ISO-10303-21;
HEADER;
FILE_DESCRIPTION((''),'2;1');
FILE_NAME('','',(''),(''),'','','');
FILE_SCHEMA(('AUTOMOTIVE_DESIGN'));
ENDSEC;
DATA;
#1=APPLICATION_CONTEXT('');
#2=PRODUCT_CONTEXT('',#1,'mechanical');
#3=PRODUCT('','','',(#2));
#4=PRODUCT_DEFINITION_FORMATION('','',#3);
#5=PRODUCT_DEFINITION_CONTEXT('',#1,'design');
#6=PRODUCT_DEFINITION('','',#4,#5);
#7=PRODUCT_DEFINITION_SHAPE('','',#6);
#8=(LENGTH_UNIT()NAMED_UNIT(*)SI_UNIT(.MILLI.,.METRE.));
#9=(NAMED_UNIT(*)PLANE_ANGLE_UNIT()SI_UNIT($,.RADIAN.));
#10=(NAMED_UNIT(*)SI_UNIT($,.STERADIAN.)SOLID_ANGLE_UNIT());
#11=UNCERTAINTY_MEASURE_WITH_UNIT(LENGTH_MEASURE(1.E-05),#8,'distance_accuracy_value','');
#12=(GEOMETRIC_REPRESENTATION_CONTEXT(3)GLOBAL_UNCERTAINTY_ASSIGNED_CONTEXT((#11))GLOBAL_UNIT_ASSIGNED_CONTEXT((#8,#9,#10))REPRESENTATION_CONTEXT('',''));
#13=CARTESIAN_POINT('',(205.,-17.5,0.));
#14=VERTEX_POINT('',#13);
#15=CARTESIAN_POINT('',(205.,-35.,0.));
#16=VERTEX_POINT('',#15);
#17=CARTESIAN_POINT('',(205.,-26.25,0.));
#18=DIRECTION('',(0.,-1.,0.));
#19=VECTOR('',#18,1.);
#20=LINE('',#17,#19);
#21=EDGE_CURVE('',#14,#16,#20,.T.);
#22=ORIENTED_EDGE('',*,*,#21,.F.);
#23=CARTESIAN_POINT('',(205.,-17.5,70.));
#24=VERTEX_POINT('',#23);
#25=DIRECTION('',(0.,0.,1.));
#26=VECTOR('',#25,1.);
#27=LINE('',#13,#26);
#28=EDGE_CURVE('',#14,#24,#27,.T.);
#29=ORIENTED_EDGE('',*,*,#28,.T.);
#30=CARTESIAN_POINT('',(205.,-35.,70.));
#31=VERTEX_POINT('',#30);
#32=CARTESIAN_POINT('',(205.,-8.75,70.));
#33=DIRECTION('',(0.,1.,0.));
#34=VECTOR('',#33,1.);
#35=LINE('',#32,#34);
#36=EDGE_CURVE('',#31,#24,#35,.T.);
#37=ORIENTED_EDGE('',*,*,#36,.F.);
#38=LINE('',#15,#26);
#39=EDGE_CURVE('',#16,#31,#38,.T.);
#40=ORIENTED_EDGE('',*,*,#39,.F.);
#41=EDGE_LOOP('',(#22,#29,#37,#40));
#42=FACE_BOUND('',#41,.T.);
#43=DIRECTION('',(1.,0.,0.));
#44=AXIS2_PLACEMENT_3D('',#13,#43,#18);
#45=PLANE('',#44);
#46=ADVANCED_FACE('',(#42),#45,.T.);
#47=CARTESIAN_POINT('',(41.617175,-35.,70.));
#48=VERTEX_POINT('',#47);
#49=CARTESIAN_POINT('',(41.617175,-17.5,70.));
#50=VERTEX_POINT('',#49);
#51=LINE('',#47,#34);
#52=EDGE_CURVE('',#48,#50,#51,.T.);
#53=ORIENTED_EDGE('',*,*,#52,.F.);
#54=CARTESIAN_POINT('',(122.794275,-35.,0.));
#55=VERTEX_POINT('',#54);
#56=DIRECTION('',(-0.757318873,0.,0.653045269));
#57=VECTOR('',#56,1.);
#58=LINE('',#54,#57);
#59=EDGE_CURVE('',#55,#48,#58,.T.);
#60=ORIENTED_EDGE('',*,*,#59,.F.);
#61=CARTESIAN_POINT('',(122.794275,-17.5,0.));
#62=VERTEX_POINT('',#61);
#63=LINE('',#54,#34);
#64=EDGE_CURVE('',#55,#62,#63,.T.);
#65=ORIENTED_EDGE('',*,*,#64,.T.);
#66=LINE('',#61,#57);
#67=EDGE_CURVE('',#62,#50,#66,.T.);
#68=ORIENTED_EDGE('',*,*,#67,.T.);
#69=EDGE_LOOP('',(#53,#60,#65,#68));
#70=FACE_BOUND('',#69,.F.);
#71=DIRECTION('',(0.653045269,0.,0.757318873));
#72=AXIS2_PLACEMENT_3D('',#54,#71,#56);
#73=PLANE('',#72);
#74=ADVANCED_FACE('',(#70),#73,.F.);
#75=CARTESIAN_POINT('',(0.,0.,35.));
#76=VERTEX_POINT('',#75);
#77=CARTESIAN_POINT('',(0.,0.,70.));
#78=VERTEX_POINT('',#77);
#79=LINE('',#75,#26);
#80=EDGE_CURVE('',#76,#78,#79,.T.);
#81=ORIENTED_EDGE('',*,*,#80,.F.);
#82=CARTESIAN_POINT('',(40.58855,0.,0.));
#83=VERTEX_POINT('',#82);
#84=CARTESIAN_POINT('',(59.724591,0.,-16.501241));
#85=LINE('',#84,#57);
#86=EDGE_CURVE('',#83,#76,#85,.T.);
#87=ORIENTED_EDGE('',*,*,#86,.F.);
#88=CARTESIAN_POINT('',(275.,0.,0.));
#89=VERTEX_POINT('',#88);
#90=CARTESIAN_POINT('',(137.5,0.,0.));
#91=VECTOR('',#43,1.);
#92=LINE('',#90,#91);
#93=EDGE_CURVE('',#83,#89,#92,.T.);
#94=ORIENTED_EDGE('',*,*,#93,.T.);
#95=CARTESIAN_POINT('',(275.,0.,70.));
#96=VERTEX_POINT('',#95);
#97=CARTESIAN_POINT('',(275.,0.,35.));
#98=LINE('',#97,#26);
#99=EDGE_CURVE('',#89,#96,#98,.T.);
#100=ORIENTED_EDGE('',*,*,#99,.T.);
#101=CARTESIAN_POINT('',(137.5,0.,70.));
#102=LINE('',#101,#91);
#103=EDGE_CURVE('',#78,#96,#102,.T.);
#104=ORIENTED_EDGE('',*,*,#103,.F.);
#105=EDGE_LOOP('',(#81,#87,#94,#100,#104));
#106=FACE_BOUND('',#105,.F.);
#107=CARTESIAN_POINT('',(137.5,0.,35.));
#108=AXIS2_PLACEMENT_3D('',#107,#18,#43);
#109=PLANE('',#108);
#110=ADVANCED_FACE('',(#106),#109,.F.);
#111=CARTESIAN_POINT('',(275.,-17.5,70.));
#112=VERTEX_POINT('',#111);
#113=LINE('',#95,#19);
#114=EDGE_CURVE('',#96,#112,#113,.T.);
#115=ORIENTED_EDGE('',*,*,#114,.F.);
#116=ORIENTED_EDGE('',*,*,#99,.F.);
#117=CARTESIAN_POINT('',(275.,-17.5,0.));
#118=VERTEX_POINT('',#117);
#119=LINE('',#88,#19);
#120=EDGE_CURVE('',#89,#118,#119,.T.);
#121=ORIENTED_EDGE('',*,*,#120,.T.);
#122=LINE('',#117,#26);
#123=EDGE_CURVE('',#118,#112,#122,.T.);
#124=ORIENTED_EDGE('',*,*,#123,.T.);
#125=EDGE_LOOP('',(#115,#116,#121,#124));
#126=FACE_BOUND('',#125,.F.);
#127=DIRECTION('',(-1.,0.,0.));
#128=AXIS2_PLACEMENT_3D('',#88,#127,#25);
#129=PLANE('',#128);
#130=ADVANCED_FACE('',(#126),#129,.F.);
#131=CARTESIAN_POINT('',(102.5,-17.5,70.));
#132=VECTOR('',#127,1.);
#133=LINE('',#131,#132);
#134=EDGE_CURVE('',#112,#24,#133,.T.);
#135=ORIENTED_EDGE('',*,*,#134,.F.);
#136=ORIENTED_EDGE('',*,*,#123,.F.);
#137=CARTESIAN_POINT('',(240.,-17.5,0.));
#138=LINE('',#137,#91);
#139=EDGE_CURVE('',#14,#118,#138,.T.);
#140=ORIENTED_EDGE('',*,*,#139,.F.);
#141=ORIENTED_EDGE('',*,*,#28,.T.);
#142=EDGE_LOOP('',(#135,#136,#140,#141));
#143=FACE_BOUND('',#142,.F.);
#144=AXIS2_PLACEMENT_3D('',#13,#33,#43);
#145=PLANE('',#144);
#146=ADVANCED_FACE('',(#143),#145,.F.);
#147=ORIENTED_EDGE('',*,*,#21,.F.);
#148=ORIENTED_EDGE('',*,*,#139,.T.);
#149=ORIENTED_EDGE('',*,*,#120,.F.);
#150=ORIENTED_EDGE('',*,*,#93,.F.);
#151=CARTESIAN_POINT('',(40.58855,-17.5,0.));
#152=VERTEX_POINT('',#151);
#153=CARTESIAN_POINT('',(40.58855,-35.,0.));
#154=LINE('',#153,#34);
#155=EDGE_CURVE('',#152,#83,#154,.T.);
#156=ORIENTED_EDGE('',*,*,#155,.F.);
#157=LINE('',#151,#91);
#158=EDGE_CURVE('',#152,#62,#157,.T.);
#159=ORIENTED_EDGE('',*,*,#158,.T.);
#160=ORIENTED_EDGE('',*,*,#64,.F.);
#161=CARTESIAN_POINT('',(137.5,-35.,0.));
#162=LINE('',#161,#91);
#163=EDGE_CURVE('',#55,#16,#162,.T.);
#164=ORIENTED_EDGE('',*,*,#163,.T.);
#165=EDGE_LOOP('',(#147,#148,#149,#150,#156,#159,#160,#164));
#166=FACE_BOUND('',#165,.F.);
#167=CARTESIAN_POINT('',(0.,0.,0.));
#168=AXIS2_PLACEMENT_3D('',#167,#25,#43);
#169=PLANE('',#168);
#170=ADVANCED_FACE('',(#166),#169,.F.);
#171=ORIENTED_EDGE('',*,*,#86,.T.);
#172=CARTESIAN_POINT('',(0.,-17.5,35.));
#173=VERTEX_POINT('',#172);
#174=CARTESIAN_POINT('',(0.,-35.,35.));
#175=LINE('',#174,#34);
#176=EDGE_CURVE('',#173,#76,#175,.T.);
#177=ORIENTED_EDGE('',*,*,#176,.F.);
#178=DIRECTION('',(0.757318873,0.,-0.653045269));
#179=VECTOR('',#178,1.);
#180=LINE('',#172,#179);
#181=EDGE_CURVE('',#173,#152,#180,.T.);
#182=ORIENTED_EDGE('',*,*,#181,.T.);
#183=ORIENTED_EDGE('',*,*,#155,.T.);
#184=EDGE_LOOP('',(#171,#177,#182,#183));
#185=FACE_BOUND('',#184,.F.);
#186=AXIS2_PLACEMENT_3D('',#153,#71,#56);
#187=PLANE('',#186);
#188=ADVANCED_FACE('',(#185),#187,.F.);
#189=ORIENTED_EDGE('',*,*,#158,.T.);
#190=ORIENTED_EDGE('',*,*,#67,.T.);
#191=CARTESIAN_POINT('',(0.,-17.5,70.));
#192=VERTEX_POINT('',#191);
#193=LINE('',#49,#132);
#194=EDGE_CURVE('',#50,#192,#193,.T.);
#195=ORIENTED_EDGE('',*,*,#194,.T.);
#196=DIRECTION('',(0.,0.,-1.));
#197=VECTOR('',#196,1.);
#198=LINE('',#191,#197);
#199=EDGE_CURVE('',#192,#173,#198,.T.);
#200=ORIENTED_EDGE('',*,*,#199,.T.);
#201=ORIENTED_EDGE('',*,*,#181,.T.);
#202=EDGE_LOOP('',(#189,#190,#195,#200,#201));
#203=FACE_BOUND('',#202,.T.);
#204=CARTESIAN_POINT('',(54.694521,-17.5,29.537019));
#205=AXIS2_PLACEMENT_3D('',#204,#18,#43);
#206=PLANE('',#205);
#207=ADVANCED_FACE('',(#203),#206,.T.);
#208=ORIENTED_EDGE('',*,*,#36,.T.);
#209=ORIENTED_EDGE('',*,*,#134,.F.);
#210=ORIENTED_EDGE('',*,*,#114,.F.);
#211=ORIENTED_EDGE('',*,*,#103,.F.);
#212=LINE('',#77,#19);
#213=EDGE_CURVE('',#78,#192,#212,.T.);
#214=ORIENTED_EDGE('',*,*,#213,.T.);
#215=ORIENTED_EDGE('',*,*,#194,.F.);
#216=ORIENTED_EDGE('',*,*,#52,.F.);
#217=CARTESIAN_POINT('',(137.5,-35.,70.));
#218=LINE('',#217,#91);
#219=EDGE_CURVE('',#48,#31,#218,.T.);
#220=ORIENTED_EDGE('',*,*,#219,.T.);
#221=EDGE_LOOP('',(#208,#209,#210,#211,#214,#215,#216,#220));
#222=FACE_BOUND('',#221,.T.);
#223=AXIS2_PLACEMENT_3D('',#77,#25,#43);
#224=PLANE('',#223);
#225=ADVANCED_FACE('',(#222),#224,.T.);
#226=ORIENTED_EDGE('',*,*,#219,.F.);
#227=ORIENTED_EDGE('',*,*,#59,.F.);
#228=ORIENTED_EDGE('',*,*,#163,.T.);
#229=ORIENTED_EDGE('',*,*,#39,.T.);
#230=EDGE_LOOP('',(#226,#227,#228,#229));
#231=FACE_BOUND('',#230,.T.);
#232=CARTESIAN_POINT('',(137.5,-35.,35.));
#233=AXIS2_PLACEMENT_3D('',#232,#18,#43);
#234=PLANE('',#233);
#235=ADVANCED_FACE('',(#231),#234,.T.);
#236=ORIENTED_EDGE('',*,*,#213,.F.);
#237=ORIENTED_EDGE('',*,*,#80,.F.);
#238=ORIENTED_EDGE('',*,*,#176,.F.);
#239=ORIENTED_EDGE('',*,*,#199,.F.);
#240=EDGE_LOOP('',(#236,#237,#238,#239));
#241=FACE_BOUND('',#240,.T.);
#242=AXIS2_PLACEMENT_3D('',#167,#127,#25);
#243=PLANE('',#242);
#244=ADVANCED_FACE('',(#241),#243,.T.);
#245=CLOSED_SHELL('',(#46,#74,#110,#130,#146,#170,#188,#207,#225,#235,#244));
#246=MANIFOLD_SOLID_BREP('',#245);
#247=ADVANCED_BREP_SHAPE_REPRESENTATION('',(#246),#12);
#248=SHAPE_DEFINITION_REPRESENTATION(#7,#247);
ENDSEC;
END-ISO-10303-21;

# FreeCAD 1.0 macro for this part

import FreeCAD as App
import Part
import Sketcher

V = App.Vector
Q = App.Units.Quantity


def add_polygon(sketch, points):
    """Adds a closed chain of lines whose ends are joined by coincident constraints."""
    first, n = sketch.GeometryCount, len(points)
    for a, b in zip(points, points[1:] + points[:1]):
        sketch.addGeometry(Part.LineSegment(App.Vector(*a, 0), App.Vector(*b, 0)), False)
    for i in range(n):
        sketch.addConstraint(Sketcher.Constraint("Coincident", first + i, 2, first + (i + 1) % n, 1))

doc = App.newDocument("Part")
body = doc.addObject("PartDesign::Body", "Body")

sketch1 = body.newObject("Sketcher::SketchObject", "Sketch")
sketch1.AttachmentSupport = (doc.getObject("XZ_Plane"), [""])
sketch1.MapMode = "FlatFace"
add_polygon(sketch1, [(0, 70), (0, 0), (275, 0), (275, 70)])
sketch1.addConstraint(Sketcher.Constraint("Vertical", 0))
sketch1.addConstraint(Sketcher.Constraint("Horizontal", 1))
sketch1.addConstraint(Sketcher.Constraint("Vertical", 2))
sketch1.addConstraint(Sketcher.Constraint("Horizontal", 3))
sketch1.addConstraint(Sketcher.Constraint("Coincident", 0, 2, -1, 1))
sketch1.addConstraint(Sketcher.Constraint("DistanceX", 1, 1, 1, 2, Q("275 mm")))
sketch1.addConstraint(Sketcher.Constraint("DistanceY", 0, 2, 0, 1, Q("70 mm")))
pad1 = body.newObject("PartDesign::Pad", "Pad")
pad1.Profile = sketch1
pad1.Length = 35

sketch2 = body.newObject("Sketcher::SketchObject", "Sketch001")
sketch2.AttachmentSupport = (doc.getObject("XY_Plane"), [""])
sketch2.MapMode = "FlatFace"
add_polygon(sketch2, [(205, -35), (205, -17.5), (275, -17.5), (275, -35)])
sketch2.addConstraint(Sketcher.Constraint("Vertical", 0))
sketch2.addConstraint(Sketcher.Constraint("Horizontal", 1))
sketch2.addConstraint(Sketcher.Constraint("Vertical", 2))
sketch2.addConstraint(Sketcher.Constraint("Horizontal", 3))
sketch2.addConstraint(Sketcher.Constraint("DistanceX", 1, 1, 1, 2, Q("70 mm")))
sketch2.addConstraint(Sketcher.Constraint("DistanceY", 0, 1, 0, 2, Q("17.5 mm")))
sketch2.addConstraint(Sketcher.Constraint("DistanceX", -1, 1, 0, 2, Q("205 mm")))
sketch2.addConstraint(Sketcher.Constraint("DistanceY", 2, 2, -1, 1, Q("35 mm")))
pocket1 = body.newObject("PartDesign::Pocket", "Pocket")
pocket1.Profile = sketch2
pocket1.Type = "ThroughAll"
pocket1.Reversed = True

sketch3 = body.newObject("Sketcher::SketchObject", "Sketch002")
sketch3.AttachmentSupport = (doc.getObject("XZ_Plane"), [""])
sketch3.MapMode = "FlatFace"
sketch3.AttachmentOffset = App.Placement(V(0, 0, 35), App.Rotation())
add_polygon(sketch3, [(40.58855, 0), (0, 35), (0, 0)])
sketch3.addConstraint(Sketcher.Constraint("Vertical", 1))
sketch3.addConstraint(Sketcher.Constraint("Horizontal", 2))
sketch3.addConstraint(Sketcher.Constraint("Coincident", 1, 2, -1, 1))
sketch3.addConstraint(Sketcher.Constraint("DistanceY", 1, 2, 1, 1, Q("35 mm")))
sketch3.addConstraint(Sketcher.Constraint("DistanceX", 2, 1, 2, 2, Q("40.58855 mm")))
pocket2 = body.newObject("PartDesign::Pocket", "Pocket001")
pocket2.Profile = sketch3
pocket2.Type = "ThroughAll"

sketch4 = body.newObject("Sketcher::SketchObject", "Sketch003")
sketch4.AttachmentSupport = (doc.getObject("XZ_Plane"), [""])
sketch4.MapMode = "FlatFace"
sketch4.AttachmentOffset = App.Placement(V(0, 0, 35), App.Rotation())
add_polygon(sketch4, [(40.58855, 0), (122.794275, 0), (41.617175, 70), (0, 70), (0, 35)])
sketch4.addConstraint(Sketcher.Constraint("Horizontal", 0))
sketch4.addConstraint(Sketcher.Constraint("Horizontal", 2))
sketch4.addConstraint(Sketcher.Constraint("Vertical", 3))
sketch4.addConstraint(Sketcher.Constraint("PointOnObject", 0, 2, -1))
sketch4.addConstraint(Sketcher.Constraint("PointOnObject", 2, 2, -2))
sketch4.addConstraint(Sketcher.Constraint("Parallel", 1, 4))
sketch4.addConstraint(Sketcher.Constraint("DistanceY", 3, 2, 3, 1, Q("35 mm")))
sketch4.addConstraint(Sketcher.Constraint("DistanceY", -1, 1, 1, 2, Q("70 mm")))
sketch4.addConstraint(Sketcher.Constraint("DistanceX", 1, 2, 0, 2, Q("81.1771 mm")))
sketch4.addConstraint(Sketcher.Constraint("DistanceX", 0, 1, 0, 2, Q("82.205725 mm")))
pocket3 = body.newObject("PartDesign::Pocket", "Pocket002")
pocket3.Profile = sketch4
pocket3.Length = 17.5

doc.recompute()
